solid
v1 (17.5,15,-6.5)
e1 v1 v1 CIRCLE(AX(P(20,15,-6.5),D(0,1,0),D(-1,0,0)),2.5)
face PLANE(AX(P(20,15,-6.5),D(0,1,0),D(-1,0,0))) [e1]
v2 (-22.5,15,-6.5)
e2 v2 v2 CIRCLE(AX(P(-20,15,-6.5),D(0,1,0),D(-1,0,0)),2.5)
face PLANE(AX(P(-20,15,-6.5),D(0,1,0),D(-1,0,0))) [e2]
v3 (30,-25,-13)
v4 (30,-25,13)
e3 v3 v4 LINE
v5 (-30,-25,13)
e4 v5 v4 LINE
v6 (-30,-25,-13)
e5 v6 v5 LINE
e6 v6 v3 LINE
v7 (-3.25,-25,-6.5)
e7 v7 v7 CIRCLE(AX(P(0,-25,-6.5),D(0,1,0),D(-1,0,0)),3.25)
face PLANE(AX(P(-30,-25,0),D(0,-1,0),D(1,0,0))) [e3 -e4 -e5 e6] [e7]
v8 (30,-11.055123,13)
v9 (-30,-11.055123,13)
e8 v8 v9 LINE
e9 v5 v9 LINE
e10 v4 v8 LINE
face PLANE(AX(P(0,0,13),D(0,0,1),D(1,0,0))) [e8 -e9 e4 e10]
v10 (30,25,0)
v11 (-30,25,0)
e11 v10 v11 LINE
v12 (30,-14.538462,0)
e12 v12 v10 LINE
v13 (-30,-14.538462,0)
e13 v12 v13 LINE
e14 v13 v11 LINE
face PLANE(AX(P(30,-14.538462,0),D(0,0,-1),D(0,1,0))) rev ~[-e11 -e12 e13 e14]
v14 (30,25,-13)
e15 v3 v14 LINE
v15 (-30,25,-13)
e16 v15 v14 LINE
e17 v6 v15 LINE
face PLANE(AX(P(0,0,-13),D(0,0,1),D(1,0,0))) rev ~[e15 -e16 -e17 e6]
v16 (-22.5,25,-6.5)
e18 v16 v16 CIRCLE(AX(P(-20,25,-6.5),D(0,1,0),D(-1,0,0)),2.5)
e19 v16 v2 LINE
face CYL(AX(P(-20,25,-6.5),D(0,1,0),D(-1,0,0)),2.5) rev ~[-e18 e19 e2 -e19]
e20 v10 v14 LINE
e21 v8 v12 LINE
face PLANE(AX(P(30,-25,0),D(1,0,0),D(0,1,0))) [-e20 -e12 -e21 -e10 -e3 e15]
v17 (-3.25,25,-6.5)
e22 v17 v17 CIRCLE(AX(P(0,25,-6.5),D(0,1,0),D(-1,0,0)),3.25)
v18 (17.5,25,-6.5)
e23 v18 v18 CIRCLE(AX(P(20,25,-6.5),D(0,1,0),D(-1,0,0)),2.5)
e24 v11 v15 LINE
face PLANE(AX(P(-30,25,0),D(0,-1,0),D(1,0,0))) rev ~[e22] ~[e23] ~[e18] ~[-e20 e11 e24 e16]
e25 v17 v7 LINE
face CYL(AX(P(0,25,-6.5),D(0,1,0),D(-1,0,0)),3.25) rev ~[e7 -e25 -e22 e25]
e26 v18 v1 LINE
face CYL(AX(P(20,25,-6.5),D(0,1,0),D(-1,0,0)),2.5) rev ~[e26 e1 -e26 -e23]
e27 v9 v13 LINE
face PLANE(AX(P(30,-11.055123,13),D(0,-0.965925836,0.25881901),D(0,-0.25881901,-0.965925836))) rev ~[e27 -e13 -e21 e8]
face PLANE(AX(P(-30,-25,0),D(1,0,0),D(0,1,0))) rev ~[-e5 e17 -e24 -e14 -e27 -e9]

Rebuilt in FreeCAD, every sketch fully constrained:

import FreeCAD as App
import Part
import Sketcher
Q = App.Units.Quantity


def add_polygon(sketch, points):
    """Adds a closed chain of lines whose ends are joined by coincident constraints."""
    first, n = sketch.GeometryCount, len(points)
    for a, b in zip(points, points[1:] + points[:1]):
        sketch.addGeometry(Part.LineSegment(App.Vector(*a, 0), App.Vector(*b, 0)), False)
    for i in range(n):
        sketch.addConstraint(Sketcher.Constraint("Coincident", first + i, 2, first + (i + 1) % n, 1))

doc = App.newDocument("Part")
body = doc.addObject("PartDesign::Body", "Body")

sketch1 = body.newObject("Sketcher::SketchObject", "Sketch")
sketch1.AttachmentSupport = (doc.getObject("XY_Plane"), [""])
sketch1.MapMode = "FlatFace"
add_polygon(sketch1, [(-30, 25), (-30, -25), (30, -25), (30, 25)])
sketch1.addConstraint(Sketcher.Constraint("Vertical", 0))
sketch1.addConstraint(Sketcher.Constraint("Horizontal", 1))
sketch1.addConstraint(Sketcher.Constraint("Vertical", 2))
sketch1.addConstraint(Sketcher.Constraint("Horizontal", 3))
sketch1.addConstraint(Sketcher.Constraint("Symmetric", 0, 2, 2, 2, -1, 1))
sketch1.addConstraint(Sketcher.Constraint("DistanceX", 1, 1, 1, 2, Q("60 mm")))
sketch1.addConstraint(Sketcher.Constraint("DistanceY", 0, 2, 0, 1, Q("50 mm")))
pad1 = body.newObject("PartDesign::Pad", "Pad")
pad1.Profile = sketch1
pad1.Length = 26
pad1.Midplane = True

sketch2 = body.newObject("Sketcher::SketchObject", "Sketch001")
sketch2.AttachmentSupport = (doc.getObject("YZ_Plane"), [""])
sketch2.MapMode = "FlatFace"
sketch2.AttachmentOffset = App.Placement(App.Vector(0, 0, 30), App.Rotation())
add_polygon(sketch2, [(-11.055123, 13), (-14.538462, 0), (25, 0), (25, 13)])
sketch2.addConstraint(Sketcher.Constraint("Horizontal", 1))
sketch2.addConstraint(Sketcher.Constraint("Vertical", 2))
sketch2.addConstraint(Sketcher.Constraint("Horizontal", 3))
sketch2.addConstraint(Sketcher.Constraint("PointOnObject", 0, 2, -1))
sketch2.addConstraint(Sketcher.Constraint("DistanceY", 2, 1, 2, 2, Q("13 mm")))
sketch2.addConstraint(Sketcher.Constraint("Angle", 0, Q("-104.999998 deg")))
sketch2.addConstraint(Sketcher.Constraint("DistanceX", -1, 1, 1, 2, Q("25 mm")))
sketch2.addConstraint(Sketcher.Constraint("DistanceX", 1, 1, 1, 2, Q("39.538462 mm")))
pocket1 = body.newObject("PartDesign::Pocket", "Pocket")
pocket1.Profile = sketch2
pocket1.Length = 60

sketch3 = body.newObject("Sketcher::SketchObject", "Sketch002")
sketch3.AttachmentSupport = (doc.getObject("XZ_Plane"), [""])
sketch3.MapMode = "FlatFace"
sketch3.AttachmentOffset = App.Placement(App.Vector(0, 0, -25), App.Rotation())
sketch3.addGeometry(Part.Circle(App.Vector(0, -6.5, 0), App.Vector(0, 0, 1), 3.25), False)
sketch3.addConstraint(Sketcher.Constraint("PointOnObject", 0, 3, -2))
sketch3.addConstraint(Sketcher.Constraint("Diameter", 0, Q("6.5 mm")))
sketch3.addConstraint(Sketcher.Constraint("DistanceY", 0, 3, -1, 1, Q("6.5 mm")))
pocket2 = body.newObject("PartDesign::Pocket", "Pocket001")
pocket2.Profile = sketch3
pocket2.Length = 50
pocket2.Reversed = True

sketch4 = body.newObject("Sketcher::SketchObject", "Sketch003")
sketch4.AttachmentSupport = (doc.getObject("XZ_Plane"), [""])
sketch4.MapMode = "FlatFace"
sketch4.AttachmentOffset = App.Placement(App.Vector(0, 0, -25), App.Rotation())
sketch4.addGeometry(Part.Circle(App.Vector(20, -6.5, 0), App.Vector(0, 0, 1), 2.5), False)
sketch4.addGeometry(Part.Circle(App.Vector(-20, -6.5, 0), App.Vector(0, 0, 1), 2.5), False)
sketch4.addConstraint(Sketcher.Constraint("Equal", 0, 1))
sketch4.addConstraint(Sketcher.Constraint("Symmetric", 0, 3, 1, 3, -2))
sketch4.addConstraint(Sketcher.Constraint("Diameter", 0, Q("5 mm")))
sketch4.addConstraint(Sketcher.Constraint("DistanceX", -1, 1, 0, 3, Q("20 mm")))
sketch4.addConstraint(Sketcher.Constraint("DistanceY", 0, 3, -1, 1, Q("6.5 mm")))
pocket3 = body.newObject("PartDesign::Pocket", "Pocket002")
pocket3.Profile = sketch4
pocket3.Length = 10
pocket3.Reversed = True

doc.recompute()
